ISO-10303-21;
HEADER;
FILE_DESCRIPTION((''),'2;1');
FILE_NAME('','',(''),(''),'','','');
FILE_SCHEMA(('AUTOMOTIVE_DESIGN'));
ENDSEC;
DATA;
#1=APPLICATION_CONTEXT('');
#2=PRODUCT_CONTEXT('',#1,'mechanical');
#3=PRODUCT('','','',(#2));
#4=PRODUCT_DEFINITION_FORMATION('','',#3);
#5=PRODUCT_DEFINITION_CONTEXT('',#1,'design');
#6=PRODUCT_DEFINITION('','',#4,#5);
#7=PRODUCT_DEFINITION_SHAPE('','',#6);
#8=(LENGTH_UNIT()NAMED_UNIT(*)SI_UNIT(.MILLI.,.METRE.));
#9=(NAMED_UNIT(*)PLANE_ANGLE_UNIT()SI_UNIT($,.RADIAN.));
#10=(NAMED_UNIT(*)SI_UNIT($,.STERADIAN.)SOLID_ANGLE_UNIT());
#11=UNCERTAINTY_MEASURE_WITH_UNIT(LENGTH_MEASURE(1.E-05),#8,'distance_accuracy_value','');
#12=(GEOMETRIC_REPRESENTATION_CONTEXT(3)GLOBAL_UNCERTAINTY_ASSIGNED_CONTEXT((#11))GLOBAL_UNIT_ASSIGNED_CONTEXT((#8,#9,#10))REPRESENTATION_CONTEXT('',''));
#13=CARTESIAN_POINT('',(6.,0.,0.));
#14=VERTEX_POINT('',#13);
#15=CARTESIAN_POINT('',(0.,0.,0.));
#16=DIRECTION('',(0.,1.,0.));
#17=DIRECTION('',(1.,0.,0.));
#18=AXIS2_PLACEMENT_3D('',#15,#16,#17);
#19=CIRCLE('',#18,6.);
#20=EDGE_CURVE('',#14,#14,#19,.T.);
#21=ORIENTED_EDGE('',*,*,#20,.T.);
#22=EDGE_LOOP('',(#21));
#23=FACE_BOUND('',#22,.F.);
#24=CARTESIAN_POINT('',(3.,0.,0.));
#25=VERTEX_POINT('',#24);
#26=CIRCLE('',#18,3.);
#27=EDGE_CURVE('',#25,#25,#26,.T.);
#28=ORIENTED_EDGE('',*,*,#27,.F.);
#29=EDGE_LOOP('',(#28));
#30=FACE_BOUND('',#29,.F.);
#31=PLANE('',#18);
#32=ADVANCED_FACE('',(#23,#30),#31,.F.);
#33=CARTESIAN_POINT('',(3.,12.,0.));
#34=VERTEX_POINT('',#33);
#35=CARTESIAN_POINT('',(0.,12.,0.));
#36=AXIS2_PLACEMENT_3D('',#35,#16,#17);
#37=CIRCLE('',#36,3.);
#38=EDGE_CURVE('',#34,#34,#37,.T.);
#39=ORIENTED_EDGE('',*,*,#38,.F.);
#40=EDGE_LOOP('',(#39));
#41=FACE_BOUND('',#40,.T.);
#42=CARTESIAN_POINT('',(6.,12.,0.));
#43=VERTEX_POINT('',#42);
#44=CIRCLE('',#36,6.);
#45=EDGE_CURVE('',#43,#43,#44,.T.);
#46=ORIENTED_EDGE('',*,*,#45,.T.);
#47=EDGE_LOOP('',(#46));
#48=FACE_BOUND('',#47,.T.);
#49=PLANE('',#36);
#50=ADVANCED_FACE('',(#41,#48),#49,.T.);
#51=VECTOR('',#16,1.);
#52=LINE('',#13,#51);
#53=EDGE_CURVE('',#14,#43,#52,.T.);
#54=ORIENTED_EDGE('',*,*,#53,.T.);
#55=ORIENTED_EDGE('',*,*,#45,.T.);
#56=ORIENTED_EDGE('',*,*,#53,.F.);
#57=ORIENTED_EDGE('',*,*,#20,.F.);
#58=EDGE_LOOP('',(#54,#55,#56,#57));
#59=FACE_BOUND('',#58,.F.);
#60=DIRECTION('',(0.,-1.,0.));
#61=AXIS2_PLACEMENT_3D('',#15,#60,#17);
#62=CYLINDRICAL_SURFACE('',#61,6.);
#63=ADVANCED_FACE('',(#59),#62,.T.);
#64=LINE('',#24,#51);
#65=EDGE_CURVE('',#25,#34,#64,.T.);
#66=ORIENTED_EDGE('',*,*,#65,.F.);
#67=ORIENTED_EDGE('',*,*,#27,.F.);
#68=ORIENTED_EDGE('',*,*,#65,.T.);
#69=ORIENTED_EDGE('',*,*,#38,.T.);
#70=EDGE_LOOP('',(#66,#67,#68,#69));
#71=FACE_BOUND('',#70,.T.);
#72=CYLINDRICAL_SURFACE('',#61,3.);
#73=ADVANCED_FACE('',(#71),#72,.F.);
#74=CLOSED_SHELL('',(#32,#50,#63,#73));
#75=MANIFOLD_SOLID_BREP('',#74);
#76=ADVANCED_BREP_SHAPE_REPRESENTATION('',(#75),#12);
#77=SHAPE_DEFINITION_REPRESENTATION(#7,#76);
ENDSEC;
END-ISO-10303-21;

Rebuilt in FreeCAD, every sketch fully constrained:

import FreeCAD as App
import Part
import Sketcher
from FreeCAD import Vector

doc = App.newDocument("Part")
body = doc.addObject("PartDesign::Body", "Body")

sketch1 = body.newObject("Sketcher::SketchObject", "Sketch")
sketch1.AttachmentSupport = (doc.getObject("XZ_Plane"), [""])
sketch1.MapMode = "FlatFace"
sketch1.addGeometry([
    Part.Circle(Vector(0, 0, 0), Vector(0, 0, 1), 6),
    Part.Circle(Vector(0, 0, 0), Vector(0, 0, 1), 3),
], False)
sketch1.addConstraint([
    Sketcher.Constraint("Coincident", 0, 3, -1, 1),
    Sketcher.Constraint("Coincident", 1, 3, -1, 1),
    Sketcher.Constraint("Diameter", 0, 12.0),
    Sketcher.Constraint("Diameter", 1, 6.0),
])
pad1 = body.newObject("PartDesign::Pad", "Pad")
pad1.Profile = sketch1
pad1.Length = 12
pad1.Reversed = True

doc.recompute()
